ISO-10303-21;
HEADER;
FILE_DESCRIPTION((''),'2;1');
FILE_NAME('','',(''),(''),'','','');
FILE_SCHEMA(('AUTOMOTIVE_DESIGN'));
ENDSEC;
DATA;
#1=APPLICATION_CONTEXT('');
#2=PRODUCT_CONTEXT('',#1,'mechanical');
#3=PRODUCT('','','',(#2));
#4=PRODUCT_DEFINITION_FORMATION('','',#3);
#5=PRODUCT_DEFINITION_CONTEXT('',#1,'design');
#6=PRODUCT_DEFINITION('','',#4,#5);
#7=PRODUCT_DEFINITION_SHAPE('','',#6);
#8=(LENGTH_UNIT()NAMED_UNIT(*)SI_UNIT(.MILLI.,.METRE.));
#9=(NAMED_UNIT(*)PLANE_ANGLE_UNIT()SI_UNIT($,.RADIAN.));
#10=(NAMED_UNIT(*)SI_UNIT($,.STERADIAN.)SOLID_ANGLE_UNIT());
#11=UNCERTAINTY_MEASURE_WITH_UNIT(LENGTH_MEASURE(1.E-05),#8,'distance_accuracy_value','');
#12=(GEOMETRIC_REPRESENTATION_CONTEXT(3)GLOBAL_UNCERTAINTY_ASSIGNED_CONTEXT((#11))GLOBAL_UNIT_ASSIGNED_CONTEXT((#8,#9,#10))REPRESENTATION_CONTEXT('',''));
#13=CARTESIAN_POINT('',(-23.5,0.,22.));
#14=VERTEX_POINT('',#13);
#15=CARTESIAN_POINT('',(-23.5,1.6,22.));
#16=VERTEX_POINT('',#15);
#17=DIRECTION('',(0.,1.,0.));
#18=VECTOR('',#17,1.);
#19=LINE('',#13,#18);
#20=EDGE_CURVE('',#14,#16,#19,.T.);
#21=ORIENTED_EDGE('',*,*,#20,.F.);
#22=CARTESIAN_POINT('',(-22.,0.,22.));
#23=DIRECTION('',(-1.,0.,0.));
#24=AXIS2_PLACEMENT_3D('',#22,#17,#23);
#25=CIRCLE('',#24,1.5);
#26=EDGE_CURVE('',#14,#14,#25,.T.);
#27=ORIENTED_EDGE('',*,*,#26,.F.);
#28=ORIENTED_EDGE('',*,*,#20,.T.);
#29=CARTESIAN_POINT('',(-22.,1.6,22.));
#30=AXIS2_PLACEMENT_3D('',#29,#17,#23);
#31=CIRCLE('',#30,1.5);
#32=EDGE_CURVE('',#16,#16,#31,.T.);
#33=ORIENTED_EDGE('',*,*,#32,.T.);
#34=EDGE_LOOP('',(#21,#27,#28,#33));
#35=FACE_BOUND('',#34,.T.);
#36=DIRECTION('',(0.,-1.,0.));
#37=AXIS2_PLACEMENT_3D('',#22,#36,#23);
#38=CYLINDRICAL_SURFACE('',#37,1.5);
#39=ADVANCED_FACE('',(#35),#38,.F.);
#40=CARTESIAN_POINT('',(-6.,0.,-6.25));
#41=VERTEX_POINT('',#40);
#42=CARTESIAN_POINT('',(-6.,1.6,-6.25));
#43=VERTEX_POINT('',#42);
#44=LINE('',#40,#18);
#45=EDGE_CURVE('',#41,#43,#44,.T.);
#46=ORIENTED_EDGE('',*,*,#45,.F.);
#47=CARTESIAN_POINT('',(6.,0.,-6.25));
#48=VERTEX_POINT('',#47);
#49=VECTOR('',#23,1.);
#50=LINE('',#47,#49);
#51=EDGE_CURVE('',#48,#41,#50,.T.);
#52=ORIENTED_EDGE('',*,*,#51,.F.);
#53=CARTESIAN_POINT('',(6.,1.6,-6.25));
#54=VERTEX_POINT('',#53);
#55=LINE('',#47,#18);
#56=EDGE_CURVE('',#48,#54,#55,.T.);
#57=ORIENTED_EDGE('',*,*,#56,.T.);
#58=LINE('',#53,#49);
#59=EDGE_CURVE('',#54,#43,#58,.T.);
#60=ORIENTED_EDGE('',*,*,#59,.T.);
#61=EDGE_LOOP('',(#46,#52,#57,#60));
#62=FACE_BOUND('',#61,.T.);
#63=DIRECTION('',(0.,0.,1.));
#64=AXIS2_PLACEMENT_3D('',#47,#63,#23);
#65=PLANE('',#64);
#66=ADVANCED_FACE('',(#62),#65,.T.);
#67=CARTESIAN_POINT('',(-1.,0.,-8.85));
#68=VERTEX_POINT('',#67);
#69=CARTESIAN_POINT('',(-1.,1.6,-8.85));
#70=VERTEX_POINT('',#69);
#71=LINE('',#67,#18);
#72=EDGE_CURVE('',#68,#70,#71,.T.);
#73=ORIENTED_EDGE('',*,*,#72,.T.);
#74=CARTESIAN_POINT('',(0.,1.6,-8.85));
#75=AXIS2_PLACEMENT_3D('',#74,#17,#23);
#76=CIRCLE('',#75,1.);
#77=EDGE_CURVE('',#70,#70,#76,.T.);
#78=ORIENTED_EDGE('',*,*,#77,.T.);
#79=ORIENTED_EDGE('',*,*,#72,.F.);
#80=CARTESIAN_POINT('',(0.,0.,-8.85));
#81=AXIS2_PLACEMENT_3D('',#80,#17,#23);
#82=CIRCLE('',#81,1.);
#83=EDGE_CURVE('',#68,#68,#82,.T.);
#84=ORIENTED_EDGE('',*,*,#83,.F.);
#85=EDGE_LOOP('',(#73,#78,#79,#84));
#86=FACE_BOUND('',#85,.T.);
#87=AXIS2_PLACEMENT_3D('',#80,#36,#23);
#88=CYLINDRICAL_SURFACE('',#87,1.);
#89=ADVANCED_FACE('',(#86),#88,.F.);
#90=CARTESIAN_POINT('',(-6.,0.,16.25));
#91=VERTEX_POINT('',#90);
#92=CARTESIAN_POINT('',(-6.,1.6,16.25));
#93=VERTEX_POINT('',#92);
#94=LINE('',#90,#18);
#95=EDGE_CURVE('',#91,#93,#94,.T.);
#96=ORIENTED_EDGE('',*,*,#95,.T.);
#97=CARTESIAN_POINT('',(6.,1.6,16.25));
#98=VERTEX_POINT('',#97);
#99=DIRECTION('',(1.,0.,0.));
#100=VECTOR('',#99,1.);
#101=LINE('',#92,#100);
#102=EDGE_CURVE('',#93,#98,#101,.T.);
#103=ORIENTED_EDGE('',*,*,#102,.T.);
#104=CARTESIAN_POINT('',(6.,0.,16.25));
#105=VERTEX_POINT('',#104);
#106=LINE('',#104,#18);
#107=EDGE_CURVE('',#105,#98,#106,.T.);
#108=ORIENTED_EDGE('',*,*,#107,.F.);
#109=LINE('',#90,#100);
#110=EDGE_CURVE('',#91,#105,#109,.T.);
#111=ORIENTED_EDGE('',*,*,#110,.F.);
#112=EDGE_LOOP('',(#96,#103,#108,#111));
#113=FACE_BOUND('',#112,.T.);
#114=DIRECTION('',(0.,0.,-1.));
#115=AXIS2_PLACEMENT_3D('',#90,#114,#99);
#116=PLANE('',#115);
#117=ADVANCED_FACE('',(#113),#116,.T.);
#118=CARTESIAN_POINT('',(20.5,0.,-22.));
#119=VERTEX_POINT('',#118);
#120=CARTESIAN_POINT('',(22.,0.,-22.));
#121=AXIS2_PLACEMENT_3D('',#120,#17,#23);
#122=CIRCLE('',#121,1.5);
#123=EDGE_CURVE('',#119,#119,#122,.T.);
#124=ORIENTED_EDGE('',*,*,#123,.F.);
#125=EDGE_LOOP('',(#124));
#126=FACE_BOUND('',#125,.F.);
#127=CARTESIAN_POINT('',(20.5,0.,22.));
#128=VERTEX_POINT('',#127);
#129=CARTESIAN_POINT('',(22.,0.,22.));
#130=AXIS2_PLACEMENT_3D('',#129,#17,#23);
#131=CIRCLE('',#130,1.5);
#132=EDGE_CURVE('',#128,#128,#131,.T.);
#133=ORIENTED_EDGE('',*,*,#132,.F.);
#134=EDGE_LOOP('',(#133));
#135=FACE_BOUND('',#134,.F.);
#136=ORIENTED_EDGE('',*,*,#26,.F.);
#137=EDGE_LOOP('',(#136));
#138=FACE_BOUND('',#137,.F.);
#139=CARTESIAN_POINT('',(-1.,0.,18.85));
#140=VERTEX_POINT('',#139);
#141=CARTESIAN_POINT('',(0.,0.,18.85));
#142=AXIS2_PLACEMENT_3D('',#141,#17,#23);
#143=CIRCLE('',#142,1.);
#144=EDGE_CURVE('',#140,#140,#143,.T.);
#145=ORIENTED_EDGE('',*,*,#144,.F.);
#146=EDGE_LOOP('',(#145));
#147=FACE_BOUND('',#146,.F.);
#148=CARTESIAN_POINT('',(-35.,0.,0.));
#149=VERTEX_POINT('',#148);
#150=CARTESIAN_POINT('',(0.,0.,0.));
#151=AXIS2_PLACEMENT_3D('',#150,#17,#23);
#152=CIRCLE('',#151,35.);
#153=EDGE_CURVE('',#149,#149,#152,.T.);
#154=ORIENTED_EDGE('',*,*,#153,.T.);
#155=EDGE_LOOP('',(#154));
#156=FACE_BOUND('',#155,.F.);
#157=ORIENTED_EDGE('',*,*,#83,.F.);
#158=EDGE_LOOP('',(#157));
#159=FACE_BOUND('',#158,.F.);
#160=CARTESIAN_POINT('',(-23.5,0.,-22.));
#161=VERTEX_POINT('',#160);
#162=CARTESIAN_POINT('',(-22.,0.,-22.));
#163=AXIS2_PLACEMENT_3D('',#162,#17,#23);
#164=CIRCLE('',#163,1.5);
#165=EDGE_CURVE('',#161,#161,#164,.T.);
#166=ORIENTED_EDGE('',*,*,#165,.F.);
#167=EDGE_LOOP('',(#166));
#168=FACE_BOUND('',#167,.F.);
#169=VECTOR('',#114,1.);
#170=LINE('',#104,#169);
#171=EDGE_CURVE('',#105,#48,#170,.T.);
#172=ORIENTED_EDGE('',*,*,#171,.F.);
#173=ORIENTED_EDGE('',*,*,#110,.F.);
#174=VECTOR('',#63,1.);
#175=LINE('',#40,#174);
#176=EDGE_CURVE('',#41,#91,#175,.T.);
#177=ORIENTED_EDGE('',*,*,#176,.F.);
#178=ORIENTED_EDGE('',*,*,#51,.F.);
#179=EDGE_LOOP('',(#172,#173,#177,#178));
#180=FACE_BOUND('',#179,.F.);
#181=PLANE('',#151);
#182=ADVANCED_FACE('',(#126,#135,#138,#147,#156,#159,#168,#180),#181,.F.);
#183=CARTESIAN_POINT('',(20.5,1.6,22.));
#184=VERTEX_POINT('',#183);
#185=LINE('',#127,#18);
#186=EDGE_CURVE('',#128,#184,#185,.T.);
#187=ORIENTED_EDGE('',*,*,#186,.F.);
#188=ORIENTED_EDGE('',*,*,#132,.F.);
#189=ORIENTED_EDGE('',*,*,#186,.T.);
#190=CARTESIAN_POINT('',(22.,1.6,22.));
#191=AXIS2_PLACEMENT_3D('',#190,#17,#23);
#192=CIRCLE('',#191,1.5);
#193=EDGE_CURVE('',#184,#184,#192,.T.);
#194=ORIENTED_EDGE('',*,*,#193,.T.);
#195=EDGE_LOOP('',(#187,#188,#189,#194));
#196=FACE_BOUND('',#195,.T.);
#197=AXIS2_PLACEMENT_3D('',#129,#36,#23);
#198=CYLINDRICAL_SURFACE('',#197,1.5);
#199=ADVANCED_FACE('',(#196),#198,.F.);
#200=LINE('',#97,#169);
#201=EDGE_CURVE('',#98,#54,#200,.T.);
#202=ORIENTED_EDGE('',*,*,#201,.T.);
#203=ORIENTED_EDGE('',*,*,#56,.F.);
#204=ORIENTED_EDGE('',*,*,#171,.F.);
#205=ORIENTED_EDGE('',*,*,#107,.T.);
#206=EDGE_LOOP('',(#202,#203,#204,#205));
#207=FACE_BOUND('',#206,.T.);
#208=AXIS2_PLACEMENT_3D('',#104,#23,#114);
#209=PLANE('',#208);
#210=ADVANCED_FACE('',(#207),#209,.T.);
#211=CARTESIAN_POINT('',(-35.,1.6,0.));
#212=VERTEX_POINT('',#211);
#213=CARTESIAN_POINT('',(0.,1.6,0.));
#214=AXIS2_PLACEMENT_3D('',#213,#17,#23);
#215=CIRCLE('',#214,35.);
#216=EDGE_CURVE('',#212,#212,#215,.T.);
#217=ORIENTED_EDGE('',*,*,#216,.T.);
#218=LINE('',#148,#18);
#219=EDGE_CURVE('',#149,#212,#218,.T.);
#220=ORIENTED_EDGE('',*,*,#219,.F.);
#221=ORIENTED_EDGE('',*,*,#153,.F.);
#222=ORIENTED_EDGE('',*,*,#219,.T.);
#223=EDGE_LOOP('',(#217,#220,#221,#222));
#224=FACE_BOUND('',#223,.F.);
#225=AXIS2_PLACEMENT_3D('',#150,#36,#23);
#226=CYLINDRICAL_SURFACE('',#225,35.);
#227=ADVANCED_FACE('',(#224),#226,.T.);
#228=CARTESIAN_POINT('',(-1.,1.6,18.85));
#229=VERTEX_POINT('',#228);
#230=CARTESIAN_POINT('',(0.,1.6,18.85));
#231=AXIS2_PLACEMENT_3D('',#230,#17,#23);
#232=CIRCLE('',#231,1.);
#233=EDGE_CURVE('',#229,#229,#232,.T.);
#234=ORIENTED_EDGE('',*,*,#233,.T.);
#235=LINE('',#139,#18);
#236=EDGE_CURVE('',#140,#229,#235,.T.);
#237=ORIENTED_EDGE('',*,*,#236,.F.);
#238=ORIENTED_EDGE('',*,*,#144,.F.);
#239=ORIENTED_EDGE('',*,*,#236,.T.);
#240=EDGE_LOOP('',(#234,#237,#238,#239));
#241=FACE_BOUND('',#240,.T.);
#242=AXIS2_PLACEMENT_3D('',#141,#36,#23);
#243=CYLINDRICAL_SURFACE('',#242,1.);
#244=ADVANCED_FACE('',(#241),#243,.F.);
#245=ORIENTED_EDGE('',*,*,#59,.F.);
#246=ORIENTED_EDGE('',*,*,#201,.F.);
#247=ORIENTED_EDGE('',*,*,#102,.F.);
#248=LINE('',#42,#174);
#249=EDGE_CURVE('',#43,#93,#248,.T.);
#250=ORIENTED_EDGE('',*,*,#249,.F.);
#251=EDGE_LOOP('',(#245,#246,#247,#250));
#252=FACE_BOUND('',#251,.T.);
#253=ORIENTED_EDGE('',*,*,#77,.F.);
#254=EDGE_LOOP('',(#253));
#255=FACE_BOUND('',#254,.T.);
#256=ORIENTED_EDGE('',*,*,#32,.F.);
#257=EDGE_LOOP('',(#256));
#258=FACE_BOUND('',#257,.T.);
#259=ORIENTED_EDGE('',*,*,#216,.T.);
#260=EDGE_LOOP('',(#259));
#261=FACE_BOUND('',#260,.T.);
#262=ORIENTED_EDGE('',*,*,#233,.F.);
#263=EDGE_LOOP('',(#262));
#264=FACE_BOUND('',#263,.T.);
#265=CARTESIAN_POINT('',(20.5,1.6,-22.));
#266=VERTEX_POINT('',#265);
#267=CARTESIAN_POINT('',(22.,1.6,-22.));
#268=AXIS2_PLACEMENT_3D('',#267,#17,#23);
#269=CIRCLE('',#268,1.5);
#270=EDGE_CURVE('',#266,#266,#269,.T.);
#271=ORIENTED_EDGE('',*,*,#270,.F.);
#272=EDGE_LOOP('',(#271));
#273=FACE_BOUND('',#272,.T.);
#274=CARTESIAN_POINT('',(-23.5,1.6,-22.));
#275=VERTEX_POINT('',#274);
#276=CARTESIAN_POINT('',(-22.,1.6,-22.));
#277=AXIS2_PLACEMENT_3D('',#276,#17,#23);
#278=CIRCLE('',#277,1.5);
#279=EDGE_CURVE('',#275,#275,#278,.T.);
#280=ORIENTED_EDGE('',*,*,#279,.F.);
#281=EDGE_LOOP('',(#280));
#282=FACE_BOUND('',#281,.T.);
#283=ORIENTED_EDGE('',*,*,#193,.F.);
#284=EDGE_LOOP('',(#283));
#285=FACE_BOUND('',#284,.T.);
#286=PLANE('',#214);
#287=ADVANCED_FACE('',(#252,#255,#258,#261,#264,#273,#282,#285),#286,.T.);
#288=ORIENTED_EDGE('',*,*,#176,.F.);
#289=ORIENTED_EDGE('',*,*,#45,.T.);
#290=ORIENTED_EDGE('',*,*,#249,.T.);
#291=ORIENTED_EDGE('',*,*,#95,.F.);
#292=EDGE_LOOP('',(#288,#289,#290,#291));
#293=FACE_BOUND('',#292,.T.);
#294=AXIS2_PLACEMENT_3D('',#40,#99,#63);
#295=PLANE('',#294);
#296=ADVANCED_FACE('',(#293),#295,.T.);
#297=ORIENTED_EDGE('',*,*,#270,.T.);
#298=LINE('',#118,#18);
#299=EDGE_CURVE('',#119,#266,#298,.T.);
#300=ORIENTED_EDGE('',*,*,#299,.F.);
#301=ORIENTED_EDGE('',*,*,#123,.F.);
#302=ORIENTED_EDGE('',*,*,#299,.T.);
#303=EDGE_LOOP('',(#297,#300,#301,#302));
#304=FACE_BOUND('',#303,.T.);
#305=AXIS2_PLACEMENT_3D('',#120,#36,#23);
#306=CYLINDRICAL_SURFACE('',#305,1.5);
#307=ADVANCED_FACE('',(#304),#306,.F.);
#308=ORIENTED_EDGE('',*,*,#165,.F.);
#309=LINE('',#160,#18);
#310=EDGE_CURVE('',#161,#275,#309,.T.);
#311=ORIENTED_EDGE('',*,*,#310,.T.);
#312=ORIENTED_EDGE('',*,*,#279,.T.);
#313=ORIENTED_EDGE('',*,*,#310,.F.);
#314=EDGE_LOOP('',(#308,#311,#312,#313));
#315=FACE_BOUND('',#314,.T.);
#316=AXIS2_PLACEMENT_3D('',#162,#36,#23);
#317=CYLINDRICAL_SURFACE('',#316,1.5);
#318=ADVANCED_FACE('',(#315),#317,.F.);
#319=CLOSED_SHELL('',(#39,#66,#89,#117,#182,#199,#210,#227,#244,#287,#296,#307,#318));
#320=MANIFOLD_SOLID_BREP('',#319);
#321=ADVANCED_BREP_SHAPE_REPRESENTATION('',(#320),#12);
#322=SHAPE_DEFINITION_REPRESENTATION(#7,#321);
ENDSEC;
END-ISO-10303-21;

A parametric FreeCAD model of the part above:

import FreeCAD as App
import Part
import Sketcher

V = App.Vector

doc = App.newDocument("Part")
params = doc.addObject("Spreadsheet::Sheet", "Params")
for row, (alias, value) in enumerate([
    ("sketch1_diameter", "70 mm"),
    ("sketch1_diameter2", "3 mm"),
    ("sketch1_diameter3", "2 mm"),
    ("sketch1_width", "12 mm"),
    ("sketch1_height", "22.5 mm"),
    ("pad1_length", "1.6 mm"),
], start=1):
    params.set(f"A{row}", alias)
    params.set(f"B{row}", "=" + value)
    params.setAlias(f"B{row}", alias)

body = doc.addObject("PartDesign::Body", "Body")

# Sketch on XZ plane
sketch1 = body.newObject("Sketcher::SketchObject", "Sketch")
sketch1.AttachmentSupport = (doc.getObject("XZ_Plane"), [""])
sketch1.MapMode = "FlatFace"
sketch1.addGeometry(Part.Circle(V(0, 0, 0), V(0, 0, 1), 35), False)
sketch1.addGeometry(Part.Circle(V(22, -22, 0), V(0, 0, 1), 1.5), False)
sketch1.addGeometry(Part.Circle(V(-22, -22, 0), V(0, 0, 1), 1.5), False)
sketch1.addGeometry(Part.Circle(V(0, -8.8, 0), V(0, 0, 1), 1), False)
sketch1.addGeometry(Part.Circle(V(22, 22, 0), V(0, 0, 1), 1.5), False)
sketch1.addGeometry(Part.LineSegment(V(-6, -6.2, 0), V(6, -6.2, 0)), False)
sketch1.addGeometry(Part.LineSegment(V(6, -6.2, 0), V(6, 16.2, 0)), False)
sketch1.addGeometry(Part.LineSegment(V(6, 16.2, 0), V(-6, 16.2, 0)), False)
sketch1.addGeometry(Part.LineSegment(V(-6, 16.2, 0), V(-6, -6.2, 0)), False)
sketch1.addGeometry(Part.Circle(V(0, 18.9, 0), V(0, 0, 1), 1), False)
sketch1.addGeometry(Part.Circle(V(-22, 22, 0), V(0, 0, 1), 1.5), False)
sketch1.addConstraint(Sketcher.Constraint("Coincident", 5, 2, 6, 1))
sketch1.addConstraint(Sketcher.Constraint("Coincident", 6, 2, 7, 1))
sketch1.addConstraint(Sketcher.Constraint("Coincident", 7, 2, 8, 1))
sketch1.addConstraint(Sketcher.Constraint("Coincident", 8, 2, 5, 1))
sketch1.addConstraint(Sketcher.Constraint("Horizontal", 5))
sketch1.addConstraint(Sketcher.Constraint("Vertical", 6))
sketch1.addConstraint(Sketcher.Constraint("Horizontal", 7))
sketch1.addConstraint(Sketcher.Constraint("Vertical", 8))
sketch1.addConstraint(Sketcher.Constraint("Coincident", 0, 3, -1, 1))
sketch1.addConstraint(Sketcher.Constraint("Equal", 1, 2))
sketch1.addConstraint(Sketcher.Constraint("Equal", 2, 4))
sketch1.addConstraint(Sketcher.Constraint("Equal", 3, 9))
sketch1.addConstraint(Sketcher.Constraint("Equal", 4, 10))
sketch1.addConstraint(Sketcher.Constraint("Symmetric", 2, 3, 4, 3, -1, 1))
sketch1.addConstraint(Sketcher.Constraint("Symmetric", 1, 3, 10, 3, -1, 1))
sketch1.addConstraint(Sketcher.Constraint("Symmetric", 1, 3, 2, 3, -2))
sketch1.addConstraint(Sketcher.Constraint("PointOnObject", 3, 3, -2))
sketch1.addConstraint(Sketcher.Constraint("PointOnObject", 9, 3, -2))
sketch1.addConstraint(Sketcher.Constraint("Diameter", 0, 70.0))
sketch1.addConstraint(Sketcher.Constraint("Diameter", 1, 3.0))
sketch1.addConstraint(Sketcher.Constraint("Diameter", 3, 2.0))
sketch1.addConstraint(Sketcher.Constraint("DistanceX", 5, 1, 5, 2, 12.0))
sketch1.addConstraint(Sketcher.Constraint("DistanceY", 6, 1, 6, 2, 22.5))
sketch1.addConstraint(Sketcher.Constraint("DistanceX", -1, 1, 1, 3, 22.0))
sketch1.addConstraint(Sketcher.Constraint("DistanceY", 1, 3, -1, 1, 22.0))
sketch1.addConstraint(Sketcher.Constraint("DistanceX", -1, 1, 5, 2, 6.0))
sketch1.addConstraint(Sketcher.Constraint("DistanceY", 3, 3, 5, 2, 2.6))
sketch1.addConstraint(Sketcher.Constraint("DistanceY", 6, 2, 9, 3, 2.6))
sketch1.addConstraint(Sketcher.Constraint("DistanceY", 5, 2, -1, 1, 6.25))
sketch1.setExpression("Constraints[18]", "Params.sketch1_diameter")
sketch1.setExpression("Constraints[19]", "Params.sketch1_diameter2")
sketch1.setExpression("Constraints[20]", "Params.sketch1_diameter3")
sketch1.setExpression("Constraints[21]", "Params.sketch1_width")
sketch1.setExpression("Constraints[22]", "Params.sketch1_height")
pad1 = body.newObject("PartDesign::Pad", "Pad")
pad1.Profile = sketch1
pad1.setExpression("Length", "Params.pad1_length")
pad1.Reversed = True

doc.recompute()
